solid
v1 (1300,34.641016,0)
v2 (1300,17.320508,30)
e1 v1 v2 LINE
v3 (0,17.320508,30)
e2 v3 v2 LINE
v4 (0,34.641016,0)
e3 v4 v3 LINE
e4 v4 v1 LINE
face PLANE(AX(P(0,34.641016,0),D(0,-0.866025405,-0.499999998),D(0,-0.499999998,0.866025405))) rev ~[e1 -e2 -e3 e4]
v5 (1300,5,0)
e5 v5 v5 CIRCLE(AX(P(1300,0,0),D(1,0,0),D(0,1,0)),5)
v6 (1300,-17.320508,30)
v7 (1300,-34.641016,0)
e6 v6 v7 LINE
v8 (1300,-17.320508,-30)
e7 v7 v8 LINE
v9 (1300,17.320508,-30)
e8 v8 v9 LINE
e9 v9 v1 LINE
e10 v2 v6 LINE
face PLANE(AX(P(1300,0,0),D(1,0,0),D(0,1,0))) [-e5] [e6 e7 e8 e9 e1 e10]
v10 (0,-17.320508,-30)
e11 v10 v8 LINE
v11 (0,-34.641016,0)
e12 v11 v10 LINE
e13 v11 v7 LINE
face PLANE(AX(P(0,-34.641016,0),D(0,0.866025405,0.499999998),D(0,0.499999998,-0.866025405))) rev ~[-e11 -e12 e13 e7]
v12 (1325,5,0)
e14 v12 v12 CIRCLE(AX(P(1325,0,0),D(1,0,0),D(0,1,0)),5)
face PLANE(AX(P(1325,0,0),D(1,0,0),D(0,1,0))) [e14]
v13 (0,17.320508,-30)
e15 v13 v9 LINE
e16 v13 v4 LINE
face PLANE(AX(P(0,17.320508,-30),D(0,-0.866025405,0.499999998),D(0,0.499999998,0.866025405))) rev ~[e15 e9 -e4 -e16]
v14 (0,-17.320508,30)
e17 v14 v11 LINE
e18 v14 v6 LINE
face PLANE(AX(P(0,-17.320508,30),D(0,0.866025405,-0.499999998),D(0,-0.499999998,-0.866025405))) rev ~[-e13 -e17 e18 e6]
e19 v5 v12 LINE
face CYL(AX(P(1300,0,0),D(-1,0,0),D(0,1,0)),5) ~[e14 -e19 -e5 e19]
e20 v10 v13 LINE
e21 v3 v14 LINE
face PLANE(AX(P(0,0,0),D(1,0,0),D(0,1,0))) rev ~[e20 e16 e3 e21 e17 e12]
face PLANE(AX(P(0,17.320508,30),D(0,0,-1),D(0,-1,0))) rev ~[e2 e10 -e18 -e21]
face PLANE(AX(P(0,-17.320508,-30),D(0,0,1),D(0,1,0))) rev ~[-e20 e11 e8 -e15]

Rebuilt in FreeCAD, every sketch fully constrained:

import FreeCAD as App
import Part
import Sketcher

V = App.Vector
Q = App.Units.Quantity

doc = App.newDocument("Part")
params = doc.addObject("Spreadsheet::Sheet", "Params")
for row, (alias, value) in enumerate([
    ("pad1_length", "1300 mm"),
    ("sketch2_diameter", "10 mm"),
    ("pad2_length", "25 mm"),
], start=1):
    params.set(f"A{row}", alias)
    params.set(f"B{row}", "=" + value)
    params.setAlias(f"B{row}", alias)

body = doc.addObject("PartDesign::Body", "Body")

# Sketch on YZ plane
sketch1 = doc.addObject("Sketcher::SketchObject", "Sketch")
body.addObject(sketch1)
sketch1.AttachmentSupport = (doc.YZ_Plane, [""])
sketch1.MapMode = "FlatFace"
sketch1.addGeometry(Part.LineSegment(V(-17, -30, 0), V(17, -30, 0)), False)
sketch1.addGeometry(Part.LineSegment(V(17, -30, 0), V(35, 0, 0)), False)
sketch1.addGeometry(Part.LineSegment(V(35, 0, 0), V(17, 30, 0)), False)
sketch1.addGeometry(Part.LineSegment(V(17, 30, 0), V(-17, 30, 0)), False)
sketch1.addGeometry(Part.LineSegment(V(-17, 30, 0), V(-35, 0, 0)), False)
sketch1.addGeometry(Part.LineSegment(V(-35, 0, 0), V(-17, -30, 0)), False)
sketch1.addConstraint(Sketcher.Constraint("Coincident", 0, 2, 1, 1))
sketch1.addConstraint(Sketcher.Constraint("Coincident", 1, 2, 2, 1))
sketch1.addConstraint(Sketcher.Constraint("Coincident", 2, 2, 3, 1))
sketch1.addConstraint(Sketcher.Constraint("Coincident", 3, 2, 4, 1))
sketch1.addConstraint(Sketcher.Constraint("Coincident", 4, 2, 5, 1))
sketch1.addConstraint(Sketcher.Constraint("Coincident", 5, 2, 0, 1))
sketch1.addConstraint(Sketcher.Constraint("Horizontal", 0))
sketch1.addConstraint(Sketcher.Constraint("Horizontal", 3))
sketch1.addConstraint(Sketcher.Constraint("Symmetric", 0, 2, 3, 2, -1, 1))
sketch1.addConstraint(Sketcher.Constraint("Symmetric", 1, 2, 4, 2, -1, 1))
sketch1.addConstraint(Sketcher.Constraint("PointOnObject", 1, 2, -1))
sketch1.addConstraint(Sketcher.Constraint("Parallel", 2, 5))
sketch1.addConstraint(Sketcher.Constraint("Vertical", 0, 2, 2, 2))
sketch1.addConstraint(Sketcher.Constraint("Angle", 1, Q("60 deg")))
sketch1.addConstraint(Sketcher.Constraint("DistanceY", 0, 2, -1, 1, Q("30 mm")))
sketch1.addConstraint(Sketcher.Constraint("DistanceX", 0, 1, 0, 2, Q("34.641016 mm")))
pad1 = doc.addObject("PartDesign::Pad", "Pad")
body.addObject(pad1)
pad1.Profile = sketch1
pad1.setExpression("Length", "Params.pad1_length")

# Sketch on YZ plane
sketch2 = doc.addObject("Sketcher::SketchObject", "Sketch001")
body.addObject(sketch2)
sketch2.AttachmentSupport = (doc.YZ_Plane, [""])
sketch2.MapMode = "FlatFace"
sketch2.AttachmentOffset = App.Placement(V(0, 0, 1300), App.Rotation())
sketch2.addGeometry(Part.Circle(V(0, 0, 0), V(0, 0, 1), 5), False)
sketch2.addConstraint(Sketcher.Constraint("Coincident", 0, 3, -1, 1))
sketch2.addConstraint(Sketcher.Constraint("Diameter", 0, Q("10 mm")))
sketch2.setExpression("Constraints[1]", "Params.sketch2_diameter")
pad2 = doc.addObject("PartDesign::Pad", "Pad001")
body.addObject(pad2)
pad2.Profile = sketch2
pad2.setExpression("Length", "Params.pad2_length")

doc.recompute()
